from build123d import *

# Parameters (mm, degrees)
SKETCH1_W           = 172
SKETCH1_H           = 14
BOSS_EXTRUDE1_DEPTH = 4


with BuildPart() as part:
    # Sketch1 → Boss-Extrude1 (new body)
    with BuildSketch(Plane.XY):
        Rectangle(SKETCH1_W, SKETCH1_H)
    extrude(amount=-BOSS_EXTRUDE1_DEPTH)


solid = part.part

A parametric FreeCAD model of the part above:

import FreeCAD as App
import Part
import Sketcher


def add_polygon(sketch, points):
    """Adds a closed chain of lines whose ends are joined by coincident constraints."""
    first, n = sketch.GeometryCount, len(points)
    for a, b in zip(points, points[1:] + points[:1]):
        sketch.addGeometry(Part.LineSegment(App.Vector(*a, 0), App.Vector(*b, 0)), False)
    for i in range(n):
        sketch.addConstraint(Sketcher.Constraint("Coincident", first + i, 2, first + (i + 1) % n, 1))

doc = App.newDocument("Part")
body = doc.addObject("PartDesign::Body", "Body")

sketch1 = doc.addObject("Sketcher::SketchObject", "Sketch")
body.addObject(sketch1)
sketch1.AttachmentSupport = (doc.XY_Plane, [""])
sketch1.MapMode = "FlatFace"
add_polygon(sketch1, [(-86, 7), (-86, -7), (86, -7), (86, 7)])
sketch1.addConstraint(Sketcher.Constraint("Vertical", 0))
sketch1.addConstraint(Sketcher.Constraint("Horizontal", 1))
sketch1.addConstraint(Sketcher.Constraint("Vertical", 2))
sketch1.addConstraint(Sketcher.Constraint("Horizontal", 3))
sketch1.addConstraint(Sketcher.Constraint("Symmetric", 0, 2, 2, 2, -1, 1))
sketch1.addConstraint(Sketcher.Constraint("DistanceX", 1, 1, 1, 2, 172.0))
sketch1.addConstraint(Sketcher.Constraint("DistanceY", 0, 2, 0, 1, 14.0))
pad1 = doc.addObject("PartDesign::Pad", "Pad")
body.addObject(pad1)
pad1.Profile = sketch1
pad1.Length = 4
pad1.Reversed = True

doc.recompute()
